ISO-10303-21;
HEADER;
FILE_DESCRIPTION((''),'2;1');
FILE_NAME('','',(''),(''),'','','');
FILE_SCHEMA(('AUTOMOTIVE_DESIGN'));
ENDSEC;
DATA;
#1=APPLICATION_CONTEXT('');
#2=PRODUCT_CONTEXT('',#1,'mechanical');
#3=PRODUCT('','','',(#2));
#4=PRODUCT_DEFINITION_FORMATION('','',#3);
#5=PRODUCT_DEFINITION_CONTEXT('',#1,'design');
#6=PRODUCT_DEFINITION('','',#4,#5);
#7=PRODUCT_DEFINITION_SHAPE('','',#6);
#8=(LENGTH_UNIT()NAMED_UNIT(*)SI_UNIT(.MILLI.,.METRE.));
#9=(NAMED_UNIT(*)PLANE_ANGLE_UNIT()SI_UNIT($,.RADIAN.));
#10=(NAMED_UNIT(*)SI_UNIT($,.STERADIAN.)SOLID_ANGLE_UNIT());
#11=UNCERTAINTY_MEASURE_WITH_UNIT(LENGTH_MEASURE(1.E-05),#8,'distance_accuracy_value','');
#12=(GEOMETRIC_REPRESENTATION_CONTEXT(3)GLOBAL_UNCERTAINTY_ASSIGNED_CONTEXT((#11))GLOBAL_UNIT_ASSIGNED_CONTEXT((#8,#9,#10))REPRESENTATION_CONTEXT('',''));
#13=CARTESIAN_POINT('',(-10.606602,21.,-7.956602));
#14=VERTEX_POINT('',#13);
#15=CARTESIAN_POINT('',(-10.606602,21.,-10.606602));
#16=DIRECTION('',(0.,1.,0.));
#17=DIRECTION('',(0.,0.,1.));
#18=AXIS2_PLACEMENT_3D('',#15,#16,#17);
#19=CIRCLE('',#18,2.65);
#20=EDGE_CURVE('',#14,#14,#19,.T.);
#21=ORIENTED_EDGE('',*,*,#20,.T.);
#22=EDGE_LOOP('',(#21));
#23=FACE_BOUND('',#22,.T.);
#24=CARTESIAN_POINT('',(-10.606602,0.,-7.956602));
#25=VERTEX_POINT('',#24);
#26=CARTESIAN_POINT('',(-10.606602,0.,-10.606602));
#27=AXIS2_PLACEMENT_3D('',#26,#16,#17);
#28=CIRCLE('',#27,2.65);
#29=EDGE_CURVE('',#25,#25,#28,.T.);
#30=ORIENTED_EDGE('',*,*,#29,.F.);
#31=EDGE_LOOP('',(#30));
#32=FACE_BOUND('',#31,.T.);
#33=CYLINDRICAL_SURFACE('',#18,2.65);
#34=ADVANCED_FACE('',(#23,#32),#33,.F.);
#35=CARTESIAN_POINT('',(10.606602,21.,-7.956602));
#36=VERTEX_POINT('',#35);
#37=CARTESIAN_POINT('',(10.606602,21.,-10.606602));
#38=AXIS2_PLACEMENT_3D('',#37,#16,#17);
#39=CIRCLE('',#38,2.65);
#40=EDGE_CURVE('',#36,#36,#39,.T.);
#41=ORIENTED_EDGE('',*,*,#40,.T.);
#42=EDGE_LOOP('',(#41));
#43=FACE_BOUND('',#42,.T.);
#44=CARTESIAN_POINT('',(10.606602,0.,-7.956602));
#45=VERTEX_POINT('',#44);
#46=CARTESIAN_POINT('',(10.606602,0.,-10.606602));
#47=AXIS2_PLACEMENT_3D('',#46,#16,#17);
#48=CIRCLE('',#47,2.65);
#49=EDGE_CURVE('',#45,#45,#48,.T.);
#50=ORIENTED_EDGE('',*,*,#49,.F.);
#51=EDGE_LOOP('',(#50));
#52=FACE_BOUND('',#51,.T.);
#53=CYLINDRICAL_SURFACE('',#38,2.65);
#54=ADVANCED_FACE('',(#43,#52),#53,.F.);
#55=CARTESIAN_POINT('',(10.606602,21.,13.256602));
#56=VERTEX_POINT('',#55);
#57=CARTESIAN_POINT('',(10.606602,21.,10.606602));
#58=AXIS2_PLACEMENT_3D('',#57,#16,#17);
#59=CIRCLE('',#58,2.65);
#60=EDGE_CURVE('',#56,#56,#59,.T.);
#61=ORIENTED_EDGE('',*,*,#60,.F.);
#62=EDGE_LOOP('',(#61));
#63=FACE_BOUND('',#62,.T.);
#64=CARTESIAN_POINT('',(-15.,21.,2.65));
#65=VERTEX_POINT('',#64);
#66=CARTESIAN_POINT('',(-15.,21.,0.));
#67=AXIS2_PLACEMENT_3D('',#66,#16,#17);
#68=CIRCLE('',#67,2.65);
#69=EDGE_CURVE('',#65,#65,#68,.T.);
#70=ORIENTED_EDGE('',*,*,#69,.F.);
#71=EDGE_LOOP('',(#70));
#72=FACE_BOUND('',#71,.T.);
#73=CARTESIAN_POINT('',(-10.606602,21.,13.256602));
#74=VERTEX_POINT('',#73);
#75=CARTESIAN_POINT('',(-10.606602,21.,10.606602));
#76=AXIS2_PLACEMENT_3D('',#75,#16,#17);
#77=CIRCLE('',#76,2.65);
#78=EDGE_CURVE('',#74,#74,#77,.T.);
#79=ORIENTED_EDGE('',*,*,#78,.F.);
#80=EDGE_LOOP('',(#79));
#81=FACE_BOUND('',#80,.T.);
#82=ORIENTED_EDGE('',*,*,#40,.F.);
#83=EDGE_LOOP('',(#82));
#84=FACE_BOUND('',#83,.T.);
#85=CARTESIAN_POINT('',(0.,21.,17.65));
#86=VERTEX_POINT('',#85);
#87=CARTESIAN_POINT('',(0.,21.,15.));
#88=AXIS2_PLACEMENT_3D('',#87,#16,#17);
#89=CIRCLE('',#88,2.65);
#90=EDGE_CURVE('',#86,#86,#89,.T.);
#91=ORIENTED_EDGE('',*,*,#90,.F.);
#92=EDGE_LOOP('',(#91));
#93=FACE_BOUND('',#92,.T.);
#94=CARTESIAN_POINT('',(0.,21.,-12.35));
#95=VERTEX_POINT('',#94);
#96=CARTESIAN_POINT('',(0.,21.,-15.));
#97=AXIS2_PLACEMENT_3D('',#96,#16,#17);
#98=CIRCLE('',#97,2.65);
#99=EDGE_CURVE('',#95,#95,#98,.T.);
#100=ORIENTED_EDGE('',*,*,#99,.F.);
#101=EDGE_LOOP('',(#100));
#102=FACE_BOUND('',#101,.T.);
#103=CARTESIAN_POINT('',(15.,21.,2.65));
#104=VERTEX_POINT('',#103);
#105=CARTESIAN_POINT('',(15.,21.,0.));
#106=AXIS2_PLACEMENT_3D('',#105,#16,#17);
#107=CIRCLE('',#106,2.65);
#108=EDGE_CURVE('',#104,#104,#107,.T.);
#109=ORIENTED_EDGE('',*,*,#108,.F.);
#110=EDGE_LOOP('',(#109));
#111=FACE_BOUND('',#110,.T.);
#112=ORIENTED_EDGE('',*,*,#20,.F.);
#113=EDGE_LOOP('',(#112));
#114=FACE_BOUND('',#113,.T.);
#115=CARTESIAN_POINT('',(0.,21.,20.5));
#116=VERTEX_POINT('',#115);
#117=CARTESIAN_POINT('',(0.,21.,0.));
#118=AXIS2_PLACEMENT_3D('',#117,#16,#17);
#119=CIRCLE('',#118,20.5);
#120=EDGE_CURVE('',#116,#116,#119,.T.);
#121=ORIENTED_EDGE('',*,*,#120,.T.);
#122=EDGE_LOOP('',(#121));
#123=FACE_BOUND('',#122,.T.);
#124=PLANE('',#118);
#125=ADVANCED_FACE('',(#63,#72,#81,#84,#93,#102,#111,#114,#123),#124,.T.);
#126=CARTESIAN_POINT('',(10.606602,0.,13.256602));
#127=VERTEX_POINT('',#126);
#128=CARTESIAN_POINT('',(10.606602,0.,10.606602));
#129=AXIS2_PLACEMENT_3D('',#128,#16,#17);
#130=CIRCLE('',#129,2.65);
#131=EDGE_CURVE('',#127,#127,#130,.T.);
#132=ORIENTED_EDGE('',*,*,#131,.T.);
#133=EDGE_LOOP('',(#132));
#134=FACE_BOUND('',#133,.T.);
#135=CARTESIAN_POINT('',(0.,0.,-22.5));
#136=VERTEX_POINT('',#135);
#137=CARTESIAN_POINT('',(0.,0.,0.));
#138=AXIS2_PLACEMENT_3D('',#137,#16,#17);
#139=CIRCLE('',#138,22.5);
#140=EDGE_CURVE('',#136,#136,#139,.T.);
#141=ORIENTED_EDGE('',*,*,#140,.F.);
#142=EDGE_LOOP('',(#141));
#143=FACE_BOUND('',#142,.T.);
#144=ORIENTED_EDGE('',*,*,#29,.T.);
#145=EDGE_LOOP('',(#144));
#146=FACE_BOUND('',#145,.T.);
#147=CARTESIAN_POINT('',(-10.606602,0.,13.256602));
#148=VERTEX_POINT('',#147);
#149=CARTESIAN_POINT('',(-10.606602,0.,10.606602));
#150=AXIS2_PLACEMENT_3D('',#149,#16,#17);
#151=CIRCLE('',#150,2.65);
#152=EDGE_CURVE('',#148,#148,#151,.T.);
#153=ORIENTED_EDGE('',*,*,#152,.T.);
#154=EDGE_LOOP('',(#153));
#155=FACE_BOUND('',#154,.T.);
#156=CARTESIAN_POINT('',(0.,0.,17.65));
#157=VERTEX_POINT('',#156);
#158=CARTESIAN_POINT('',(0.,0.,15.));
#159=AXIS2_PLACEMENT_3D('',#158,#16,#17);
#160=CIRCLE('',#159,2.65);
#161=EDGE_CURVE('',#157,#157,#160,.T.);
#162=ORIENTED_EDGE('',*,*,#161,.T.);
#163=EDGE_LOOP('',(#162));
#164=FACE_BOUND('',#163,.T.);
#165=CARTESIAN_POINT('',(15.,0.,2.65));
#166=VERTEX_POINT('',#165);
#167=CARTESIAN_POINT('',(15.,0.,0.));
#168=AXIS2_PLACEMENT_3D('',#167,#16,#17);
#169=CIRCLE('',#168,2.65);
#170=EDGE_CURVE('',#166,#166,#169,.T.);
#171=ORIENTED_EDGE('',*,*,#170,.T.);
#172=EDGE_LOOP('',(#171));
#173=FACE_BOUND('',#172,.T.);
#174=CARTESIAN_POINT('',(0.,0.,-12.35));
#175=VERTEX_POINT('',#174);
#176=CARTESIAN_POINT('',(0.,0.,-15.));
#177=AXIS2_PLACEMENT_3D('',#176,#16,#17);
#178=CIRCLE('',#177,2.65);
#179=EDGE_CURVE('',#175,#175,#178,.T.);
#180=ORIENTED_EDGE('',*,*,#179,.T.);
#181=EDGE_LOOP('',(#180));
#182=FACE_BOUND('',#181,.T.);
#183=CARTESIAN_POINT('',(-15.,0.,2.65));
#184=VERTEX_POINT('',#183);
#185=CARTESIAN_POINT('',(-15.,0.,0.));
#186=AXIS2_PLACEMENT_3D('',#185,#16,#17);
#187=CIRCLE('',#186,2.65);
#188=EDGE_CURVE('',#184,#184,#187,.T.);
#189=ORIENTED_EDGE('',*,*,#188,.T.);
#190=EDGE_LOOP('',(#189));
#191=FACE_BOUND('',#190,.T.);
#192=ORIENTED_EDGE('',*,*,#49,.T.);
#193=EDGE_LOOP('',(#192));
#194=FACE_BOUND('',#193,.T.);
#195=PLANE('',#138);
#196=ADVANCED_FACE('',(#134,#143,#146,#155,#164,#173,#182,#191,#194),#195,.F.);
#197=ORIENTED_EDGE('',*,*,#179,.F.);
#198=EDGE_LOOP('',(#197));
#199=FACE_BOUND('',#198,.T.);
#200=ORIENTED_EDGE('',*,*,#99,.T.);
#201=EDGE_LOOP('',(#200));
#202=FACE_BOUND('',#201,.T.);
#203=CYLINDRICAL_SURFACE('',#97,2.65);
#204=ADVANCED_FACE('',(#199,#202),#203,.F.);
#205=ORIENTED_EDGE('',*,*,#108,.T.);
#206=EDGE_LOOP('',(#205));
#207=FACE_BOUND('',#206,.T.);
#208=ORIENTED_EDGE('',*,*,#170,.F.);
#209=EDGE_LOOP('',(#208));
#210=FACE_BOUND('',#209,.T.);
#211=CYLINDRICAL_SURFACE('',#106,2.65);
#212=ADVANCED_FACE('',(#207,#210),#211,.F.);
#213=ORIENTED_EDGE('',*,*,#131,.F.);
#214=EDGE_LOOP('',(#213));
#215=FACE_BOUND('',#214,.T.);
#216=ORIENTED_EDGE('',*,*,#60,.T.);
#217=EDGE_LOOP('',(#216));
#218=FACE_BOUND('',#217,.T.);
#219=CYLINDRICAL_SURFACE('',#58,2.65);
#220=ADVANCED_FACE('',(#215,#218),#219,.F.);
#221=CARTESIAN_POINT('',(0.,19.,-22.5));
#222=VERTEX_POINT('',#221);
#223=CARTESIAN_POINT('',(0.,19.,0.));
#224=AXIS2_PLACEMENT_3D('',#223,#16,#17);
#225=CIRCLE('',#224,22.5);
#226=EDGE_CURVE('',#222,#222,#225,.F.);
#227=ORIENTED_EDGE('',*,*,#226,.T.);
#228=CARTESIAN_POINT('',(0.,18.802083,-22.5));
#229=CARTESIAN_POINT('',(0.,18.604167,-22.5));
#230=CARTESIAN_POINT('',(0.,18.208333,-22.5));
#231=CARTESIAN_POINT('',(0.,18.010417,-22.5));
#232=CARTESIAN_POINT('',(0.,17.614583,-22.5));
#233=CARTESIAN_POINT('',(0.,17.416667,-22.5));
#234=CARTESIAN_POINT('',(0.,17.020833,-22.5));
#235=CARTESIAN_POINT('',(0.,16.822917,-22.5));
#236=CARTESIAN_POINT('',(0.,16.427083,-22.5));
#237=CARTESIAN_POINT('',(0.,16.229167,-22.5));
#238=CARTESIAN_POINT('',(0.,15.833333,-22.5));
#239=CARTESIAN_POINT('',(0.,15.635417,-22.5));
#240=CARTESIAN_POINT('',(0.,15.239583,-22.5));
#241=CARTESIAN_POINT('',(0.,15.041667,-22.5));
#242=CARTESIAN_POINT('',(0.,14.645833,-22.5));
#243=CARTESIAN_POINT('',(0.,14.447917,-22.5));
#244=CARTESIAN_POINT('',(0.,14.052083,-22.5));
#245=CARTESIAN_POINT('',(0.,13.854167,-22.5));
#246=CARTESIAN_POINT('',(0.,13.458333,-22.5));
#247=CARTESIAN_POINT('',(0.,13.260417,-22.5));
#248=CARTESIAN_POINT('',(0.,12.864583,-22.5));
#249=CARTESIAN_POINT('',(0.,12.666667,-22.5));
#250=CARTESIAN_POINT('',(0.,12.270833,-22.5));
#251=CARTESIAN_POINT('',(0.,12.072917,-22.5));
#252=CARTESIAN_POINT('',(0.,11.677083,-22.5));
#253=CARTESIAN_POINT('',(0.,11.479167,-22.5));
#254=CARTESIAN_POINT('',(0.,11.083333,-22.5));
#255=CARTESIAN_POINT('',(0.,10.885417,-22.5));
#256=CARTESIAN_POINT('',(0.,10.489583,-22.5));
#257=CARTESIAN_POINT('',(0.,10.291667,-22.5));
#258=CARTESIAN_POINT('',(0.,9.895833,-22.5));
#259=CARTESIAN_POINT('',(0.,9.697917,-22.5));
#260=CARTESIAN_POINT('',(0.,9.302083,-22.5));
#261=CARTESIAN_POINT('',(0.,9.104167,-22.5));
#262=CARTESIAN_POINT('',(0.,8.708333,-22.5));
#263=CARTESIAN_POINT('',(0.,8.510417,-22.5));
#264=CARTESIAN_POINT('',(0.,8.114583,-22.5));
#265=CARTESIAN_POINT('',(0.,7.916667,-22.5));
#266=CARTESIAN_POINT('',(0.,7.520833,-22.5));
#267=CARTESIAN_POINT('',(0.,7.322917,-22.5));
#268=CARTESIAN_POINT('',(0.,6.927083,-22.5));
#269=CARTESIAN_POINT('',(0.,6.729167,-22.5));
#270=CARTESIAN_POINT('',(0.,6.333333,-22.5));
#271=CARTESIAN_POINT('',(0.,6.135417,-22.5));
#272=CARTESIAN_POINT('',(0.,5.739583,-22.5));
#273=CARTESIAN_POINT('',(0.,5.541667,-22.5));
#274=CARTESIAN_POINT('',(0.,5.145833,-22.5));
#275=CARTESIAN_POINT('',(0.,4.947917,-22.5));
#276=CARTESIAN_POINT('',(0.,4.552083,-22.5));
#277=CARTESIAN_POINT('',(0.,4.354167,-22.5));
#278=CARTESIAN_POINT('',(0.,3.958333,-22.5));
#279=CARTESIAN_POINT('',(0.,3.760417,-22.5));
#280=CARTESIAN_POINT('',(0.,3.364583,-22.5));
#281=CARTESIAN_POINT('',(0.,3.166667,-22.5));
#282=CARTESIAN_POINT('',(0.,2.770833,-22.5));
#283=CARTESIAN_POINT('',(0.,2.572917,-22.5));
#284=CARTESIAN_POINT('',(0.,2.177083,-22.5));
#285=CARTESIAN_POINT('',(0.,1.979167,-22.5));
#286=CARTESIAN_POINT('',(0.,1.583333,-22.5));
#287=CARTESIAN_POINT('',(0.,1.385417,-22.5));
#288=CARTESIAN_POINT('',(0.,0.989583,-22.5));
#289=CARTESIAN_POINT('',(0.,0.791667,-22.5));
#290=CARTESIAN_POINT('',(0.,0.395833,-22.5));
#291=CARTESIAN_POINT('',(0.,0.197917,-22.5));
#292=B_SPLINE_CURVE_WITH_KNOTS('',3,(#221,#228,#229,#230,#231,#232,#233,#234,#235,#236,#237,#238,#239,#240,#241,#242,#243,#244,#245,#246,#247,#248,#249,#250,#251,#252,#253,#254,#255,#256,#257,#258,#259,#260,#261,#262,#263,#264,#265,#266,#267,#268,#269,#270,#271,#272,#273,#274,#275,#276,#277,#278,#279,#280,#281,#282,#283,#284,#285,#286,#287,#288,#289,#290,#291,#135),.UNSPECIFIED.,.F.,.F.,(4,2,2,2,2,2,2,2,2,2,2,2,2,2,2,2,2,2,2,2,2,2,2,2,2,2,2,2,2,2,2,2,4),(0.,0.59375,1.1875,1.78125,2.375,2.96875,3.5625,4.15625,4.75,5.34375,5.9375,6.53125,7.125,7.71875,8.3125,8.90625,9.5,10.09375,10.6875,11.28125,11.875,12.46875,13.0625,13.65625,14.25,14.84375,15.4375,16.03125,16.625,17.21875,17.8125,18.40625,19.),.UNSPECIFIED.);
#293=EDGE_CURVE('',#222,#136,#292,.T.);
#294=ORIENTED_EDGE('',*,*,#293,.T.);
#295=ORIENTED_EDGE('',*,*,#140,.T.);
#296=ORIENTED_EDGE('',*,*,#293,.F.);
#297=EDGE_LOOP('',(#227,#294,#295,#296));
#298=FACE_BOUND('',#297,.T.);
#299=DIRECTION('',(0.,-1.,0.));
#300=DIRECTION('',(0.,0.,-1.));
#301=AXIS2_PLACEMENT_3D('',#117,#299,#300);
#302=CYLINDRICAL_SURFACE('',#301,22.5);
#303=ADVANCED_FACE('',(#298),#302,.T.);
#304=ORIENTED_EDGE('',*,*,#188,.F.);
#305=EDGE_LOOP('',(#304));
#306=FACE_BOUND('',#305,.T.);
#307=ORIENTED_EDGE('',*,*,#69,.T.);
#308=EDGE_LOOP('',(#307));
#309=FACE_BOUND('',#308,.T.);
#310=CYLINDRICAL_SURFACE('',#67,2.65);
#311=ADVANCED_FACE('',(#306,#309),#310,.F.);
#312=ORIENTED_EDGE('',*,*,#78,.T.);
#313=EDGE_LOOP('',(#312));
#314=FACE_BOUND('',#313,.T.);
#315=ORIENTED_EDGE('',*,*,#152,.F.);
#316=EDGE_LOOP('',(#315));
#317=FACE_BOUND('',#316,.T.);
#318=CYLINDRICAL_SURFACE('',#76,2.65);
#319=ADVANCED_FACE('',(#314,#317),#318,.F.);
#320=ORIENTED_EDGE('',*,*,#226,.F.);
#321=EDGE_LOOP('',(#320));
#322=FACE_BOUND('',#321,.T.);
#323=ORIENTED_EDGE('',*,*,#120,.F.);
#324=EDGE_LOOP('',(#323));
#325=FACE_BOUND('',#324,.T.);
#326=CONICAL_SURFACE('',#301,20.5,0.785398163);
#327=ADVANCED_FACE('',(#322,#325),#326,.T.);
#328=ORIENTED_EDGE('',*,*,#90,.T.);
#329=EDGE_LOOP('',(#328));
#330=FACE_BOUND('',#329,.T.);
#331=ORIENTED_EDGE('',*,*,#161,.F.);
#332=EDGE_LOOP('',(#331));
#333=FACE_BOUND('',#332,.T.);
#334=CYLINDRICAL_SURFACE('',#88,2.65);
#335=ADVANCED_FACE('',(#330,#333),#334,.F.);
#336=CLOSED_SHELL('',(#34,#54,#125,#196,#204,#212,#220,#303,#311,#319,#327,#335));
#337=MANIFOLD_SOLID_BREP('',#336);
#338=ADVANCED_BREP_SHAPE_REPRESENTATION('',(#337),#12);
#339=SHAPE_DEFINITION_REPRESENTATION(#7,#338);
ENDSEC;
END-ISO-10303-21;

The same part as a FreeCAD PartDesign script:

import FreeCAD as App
import Part
import Sketcher
from FreeCAD import Vector
Q = App.Units.Quantity


def edges_at(feature, points):
    """Names of the edges that pass closest to the given points."""
    edges = feature.Shape.Edges
    near = lambda p: min(range(len(edges)), key=lambda i: edges[i].distToShape(Part.Vertex(*p))[0])
    return sorted({f"Edge{near(p) + 1}" for p in points})

doc = App.newDocument("Part")
body = doc.addObject("PartDesign::Body", "Body")

# Sketch on XZ plane
sketch1 = body.newObject("Sketcher::SketchObject", "Sketch")
sketch1.AttachmentSupport = (doc.getObject("XZ_Plane"), [""])
sketch1.MapMode = "FlatFace"
sketch1.addGeometry(Part.Circle(Vector(0, 0, 0), Vector(0, 0, 1), 22.5), False)
sketch1.addConstraint(Sketcher.Constraint("Coincident", 0, 3, -1, 1))
sketch1.addConstraint(Sketcher.Constraint("Diameter", 0, Q("45 mm")))
pad1 = body.newObject("PartDesign::Pad", "Pad")
pad1.Profile = sketch1
pad1.Length = 21
pad1.Reversed = True
doc.recompute()

chamfer = body.newObject("PartDesign::Chamfer", "Chamfer")
chamfer.Base = (pad1, edges_at(pad1, [(0, 21, 22.5)]))
chamfer.Size = 2

# Sketch on XZ plane
sketch2 = body.newObject("Sketcher::SketchObject", "Sketch001")
sketch2.AttachmentSupport = (doc.getObject("XZ_Plane"), [""])
sketch2.MapMode = "FlatFace"
sketch2.AttachmentOffset = App.Placement(Vector(0, 0, -21), App.Rotation())
sketch2.addGeometry(Part.Circle(Vector(-10.606602, -10.606602, 0), Vector(0, 0, 1), 2.65), False)
sketch2.addGeometry(Part.Circle(Vector(0, -15, 0), Vector(0, 0, 1), 2.65), False)
sketch2.addGeometry(Part.Circle(Vector(15, 0, 0), Vector(0, 0, 1), 2.65), False)
sketch2.addGeometry(Part.Circle(Vector(0, 15, 0), Vector(0, 0, 1), 2.65), False)
sketch2.addGeometry(Part.Circle(Vector(-15, 0, 0), Vector(0, 0, 1), 2.65), False)
sketch2.addGeometry(Part.Circle(Vector(10.606602, -10.606602, 0), Vector(0, 0, 1), 2.65), False)
sketch2.addGeometry(Part.Circle(Vector(10.606602, 10.606602, 0), Vector(0, 0, 1), 2.65), False)
sketch2.addGeometry(Part.Circle(Vector(-10.606602, 10.606602, 0), Vector(0, 0, 1), 2.65), False)
sketch2.addConstraint(Sketcher.Constraint("Equal", 0, 1))
sketch2.addConstraint(Sketcher.Constraint("Equal", 1, 2))
sketch2.addConstraint(Sketcher.Constraint("Equal", 2, 3))
sketch2.addConstraint(Sketcher.Constraint("Equal", 3, 4))
sketch2.addConstraint(Sketcher.Constraint("Equal", 4, 5))
sketch2.addConstraint(Sketcher.Constraint("Equal", 5, 6))
sketch2.addConstraint(Sketcher.Constraint("Equal", 6, 7))
sketch2.addConstraint(Sketcher.Constraint("Symmetric", 1, 3, 3, 3, -1, 1))
sketch2.addConstraint(Sketcher.Constraint("Symmetric", 2, 3, 4, 3, -1, 1))
sketch2.addConstraint(Sketcher.Constraint("Symmetric", 0, 3, 6, 3, -1, 1))
sketch2.addConstraint(Sketcher.Constraint("Symmetric", 5, 3, 7, 3, -1, 1))
sketch2.addConstraint(Sketcher.Constraint("Symmetric", 0, 3, 5, 3, -2))
sketch2.addConstraint(Sketcher.Constraint("PointOnObject", 1, 3, -2))
sketch2.addConstraint(Sketcher.Constraint("PointOnObject", 2, 3, -1))
sketch2.addConstraint(Sketcher.Constraint("Diameter", 0, Q("5.3 mm")))
sketch2.addConstraint(Sketcher.Constraint("DistanceY", 1, 3, -1, 1, Q("15 mm")))
sketch2.addConstraint(Sketcher.Constraint("DistanceX", -1, 1, 2, 3, Q("15 mm")))
sketch2.addConstraint(Sketcher.Constraint("DistanceX", 0, 3, -1, 1, Q("10.606602 mm")))
sketch2.addConstraint(Sketcher.Constraint("DistanceY", 0, 3, -1, 1, Q("10.606602 mm")))
doc.recompute()
hole = body.newObject("PartDesign::Hole", "Hole")
hole.Profile = sketch2
hole.ThreadType = "None"
hole.Diameter = 5.3
hole.DepthType = "ThroughAll"
hole.Reversed = True

doc.recompute()
